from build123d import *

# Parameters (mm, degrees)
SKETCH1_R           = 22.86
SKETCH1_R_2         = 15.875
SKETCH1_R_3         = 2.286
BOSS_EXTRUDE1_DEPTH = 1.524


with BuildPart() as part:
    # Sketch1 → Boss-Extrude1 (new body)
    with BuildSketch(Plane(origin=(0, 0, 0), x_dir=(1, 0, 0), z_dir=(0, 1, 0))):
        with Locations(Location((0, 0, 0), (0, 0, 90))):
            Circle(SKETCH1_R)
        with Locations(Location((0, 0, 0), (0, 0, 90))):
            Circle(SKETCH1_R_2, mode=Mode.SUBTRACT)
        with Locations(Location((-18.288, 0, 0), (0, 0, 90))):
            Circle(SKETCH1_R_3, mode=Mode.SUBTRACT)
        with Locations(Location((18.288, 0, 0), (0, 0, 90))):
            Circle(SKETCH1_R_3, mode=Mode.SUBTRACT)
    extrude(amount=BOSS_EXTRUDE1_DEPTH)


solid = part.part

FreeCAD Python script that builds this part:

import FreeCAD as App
import Part
import Sketcher
Q = App.Units.Quantity

doc = App.newDocument("Part")
params = doc.addObject("Spreadsheet::Sheet", "Params")
for row, (alias, value) in enumerate([
    ("sketch1_diameter", "1.8 in"),
    ("sketch1_diameter2", "0.18 in"),
    ("sketch1_diameter3", "1.25 in"),
    ("pad1_length", "0.06 in"),
], start=1):
    params.set(f"A{row}", alias)
    params.set(f"B{row}", "=" + value)
    params.setAlias(f"B{row}", alias)

body = doc.addObject("PartDesign::Body", "Body")

# Sketch on XZ plane
sketch1 = body.newObject("Sketcher::SketchObject", "Sketch")
sketch1.AttachmentSupport = (doc.getObject("XZ_Plane"), [""])
sketch1.MapMode = "FlatFace"
sketch1.addGeometry([
    Part.Circle(App.Vector(0, 0, 0), App.Vector(0, 0, 1), 22.86),
    Part.Circle(App.Vector(18.288, 0, 0), App.Vector(0, 0, 1), 2.286),
    Part.Circle(App.Vector(0, 0, 0), App.Vector(0, 0, 1), 15.875),
    Part.Circle(App.Vector(-18.288, 0, 0), App.Vector(0, 0, 1), 2.286),
], False)
sketch1.addConstraint([
    Sketcher.Constraint("Coincident", 0, 3, -1, 1),
    Sketcher.Constraint("Coincident", 2, 3, -1, 1),
    Sketcher.Constraint("Equal", 1, 3),
    Sketcher.Constraint("Symmetric", 1, 3, 3, 3, -1, 1),
    Sketcher.Constraint("PointOnObject", 1, 3, -1),
    Sketcher.Constraint("Diameter", 0, Q("1.8 in")),
    Sketcher.Constraint("Diameter", 1, Q("0.18 in")),
    Sketcher.Constraint("Diameter", 2, Q("1.25 in")),
    Sketcher.Constraint("DistanceX", -1, 1, 1, 3, Q("0.72 in")),
])
sketch1.setExpression("Constraints[5]", "Params.sketch1_diameter")
sketch1.setExpression("Constraints[6]", "Params.sketch1_diameter2")
sketch1.setExpression("Constraints[7]", "Params.sketch1_diameter3")
pad1 = body.newObject("PartDesign::Pad", "Pad")
pad1.Profile = sketch1
pad1.setExpression("Length", "Params.pad1_length")
pad1.Reversed = True

doc.recompute()
